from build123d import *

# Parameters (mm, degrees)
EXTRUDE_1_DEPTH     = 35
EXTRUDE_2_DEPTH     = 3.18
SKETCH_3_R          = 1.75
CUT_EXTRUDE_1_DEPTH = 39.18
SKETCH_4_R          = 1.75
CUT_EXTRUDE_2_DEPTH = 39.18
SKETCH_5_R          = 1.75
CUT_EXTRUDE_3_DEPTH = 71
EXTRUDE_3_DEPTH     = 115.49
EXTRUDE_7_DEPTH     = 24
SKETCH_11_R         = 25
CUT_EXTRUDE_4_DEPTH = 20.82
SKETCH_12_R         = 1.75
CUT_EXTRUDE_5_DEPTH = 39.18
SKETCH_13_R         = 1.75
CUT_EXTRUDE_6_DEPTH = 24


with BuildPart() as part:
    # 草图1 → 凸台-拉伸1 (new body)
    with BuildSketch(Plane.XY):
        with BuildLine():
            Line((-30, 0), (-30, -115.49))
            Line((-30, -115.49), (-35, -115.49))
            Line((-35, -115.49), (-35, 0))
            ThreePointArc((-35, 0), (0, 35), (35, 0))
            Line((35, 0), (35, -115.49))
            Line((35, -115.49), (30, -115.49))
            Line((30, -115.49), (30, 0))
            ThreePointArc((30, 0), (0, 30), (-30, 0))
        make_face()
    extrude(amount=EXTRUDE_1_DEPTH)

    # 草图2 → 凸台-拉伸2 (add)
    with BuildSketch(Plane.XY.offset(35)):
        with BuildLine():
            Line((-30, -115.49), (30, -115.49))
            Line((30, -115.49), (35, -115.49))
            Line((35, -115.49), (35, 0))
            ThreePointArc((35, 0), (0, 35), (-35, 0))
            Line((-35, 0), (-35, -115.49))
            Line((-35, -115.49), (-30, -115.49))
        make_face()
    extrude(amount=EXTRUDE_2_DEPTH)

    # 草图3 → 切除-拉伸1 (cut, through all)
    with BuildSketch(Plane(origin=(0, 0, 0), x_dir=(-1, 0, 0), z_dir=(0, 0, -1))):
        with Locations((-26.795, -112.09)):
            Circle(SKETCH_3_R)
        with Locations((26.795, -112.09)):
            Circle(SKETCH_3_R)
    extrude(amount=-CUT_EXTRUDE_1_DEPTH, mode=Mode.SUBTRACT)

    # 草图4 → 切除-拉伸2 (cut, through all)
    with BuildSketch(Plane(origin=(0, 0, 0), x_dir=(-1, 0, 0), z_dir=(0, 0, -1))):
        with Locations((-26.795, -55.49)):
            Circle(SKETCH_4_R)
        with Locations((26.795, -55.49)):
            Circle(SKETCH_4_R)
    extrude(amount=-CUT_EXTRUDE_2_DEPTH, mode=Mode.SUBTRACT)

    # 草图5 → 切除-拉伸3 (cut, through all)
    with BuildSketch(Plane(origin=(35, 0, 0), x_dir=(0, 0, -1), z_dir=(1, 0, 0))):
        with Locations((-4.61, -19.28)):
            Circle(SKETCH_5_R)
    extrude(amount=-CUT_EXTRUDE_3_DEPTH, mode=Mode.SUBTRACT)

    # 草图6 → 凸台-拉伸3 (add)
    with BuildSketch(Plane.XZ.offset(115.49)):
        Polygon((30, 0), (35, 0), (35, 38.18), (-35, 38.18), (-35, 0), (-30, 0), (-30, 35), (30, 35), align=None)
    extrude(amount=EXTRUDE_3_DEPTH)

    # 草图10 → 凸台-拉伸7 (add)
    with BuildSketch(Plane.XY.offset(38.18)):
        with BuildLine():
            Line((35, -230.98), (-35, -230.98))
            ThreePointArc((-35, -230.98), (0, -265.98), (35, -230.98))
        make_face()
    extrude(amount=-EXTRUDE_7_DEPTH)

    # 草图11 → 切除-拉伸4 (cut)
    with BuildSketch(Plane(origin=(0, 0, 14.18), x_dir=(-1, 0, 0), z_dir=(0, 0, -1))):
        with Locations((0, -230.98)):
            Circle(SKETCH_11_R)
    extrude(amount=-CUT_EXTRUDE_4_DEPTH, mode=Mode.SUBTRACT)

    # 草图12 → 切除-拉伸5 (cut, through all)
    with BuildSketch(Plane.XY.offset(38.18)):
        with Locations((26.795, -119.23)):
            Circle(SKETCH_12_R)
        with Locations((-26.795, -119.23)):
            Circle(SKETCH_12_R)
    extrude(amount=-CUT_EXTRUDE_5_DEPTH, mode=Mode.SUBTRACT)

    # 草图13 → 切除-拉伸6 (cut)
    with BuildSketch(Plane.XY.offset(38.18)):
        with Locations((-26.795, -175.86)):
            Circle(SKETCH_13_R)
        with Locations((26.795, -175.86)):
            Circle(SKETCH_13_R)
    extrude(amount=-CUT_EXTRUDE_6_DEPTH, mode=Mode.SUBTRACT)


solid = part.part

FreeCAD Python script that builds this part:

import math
import FreeCAD as App
import Part
import Sketcher
Q = App.Units.Quantity

doc = App.newDocument("Part")
body = doc.addObject("PartDesign::Body", "Body")

# Sketch on XY plane
sketch1 = body.newObject("Sketcher::SketchObject", "Sketch")
sketch1.AttachmentSupport = (doc.getObject("XY_Plane"), [""])
sketch1.MapMode = "FlatFace"
sketch1.addGeometry([
    Part.LineSegment(App.Vector(-30, -115.49, 0), App.Vector(-30, 0, 0)),  # 0
    Part.ArcOfCircle(Part.Circle(App.Vector(0, 0, 0), App.Vector(0, 0, 1), 30), math.radians(0), math.radians(180)),  # 1
    Part.LineSegment(App.Vector(30, 0, 0), App.Vector(30, -115.49, 0)),  # 2
    Part.LineSegment(App.Vector(30, -115.49, 0), App.Vector(35, -115.49, 0)),  # 3
    Part.LineSegment(App.Vector(35, -115.49, 0), App.Vector(35, 0, 0)),  # 4
    Part.ArcOfCircle(Part.Circle(App.Vector(0, 0, 0), App.Vector(0, 0, 1), 35), math.radians(0), math.radians(180)),  # 5
    Part.LineSegment(App.Vector(-35, 0, 0), App.Vector(-35, -115.49, 0)),  # 6
    Part.LineSegment(App.Vector(-35, -115.49, 0), App.Vector(-30, -115.49, 0)),  # 7
], False)
sketch1.addConstraint([
    Sketcher.Constraint("Tangent", 0, 2, 1, 2),
    Sketcher.Constraint("Tangent", 1, 1, 2, 1),
    Sketcher.Constraint("Coincident", 2, 2, 3, 1),
    Sketcher.Constraint("Coincident", 3, 2, 4, 1),
    Sketcher.Constraint("Tangent", 4, 2, 5, 1),
    Sketcher.Constraint("Tangent", 5, 2, 6, 1),
    Sketcher.Constraint("Coincident", 6, 2, 7, 1),
    Sketcher.Constraint("Coincident", 7, 2, 0, 1),
    Sketcher.Constraint("Vertical", 0),
    Sketcher.Constraint("Vertical", 2),
    Sketcher.Constraint("Horizontal", 3),
    Sketcher.Constraint("Vertical", 4),
    Sketcher.Constraint("Vertical", 6),
    Sketcher.Constraint("Horizontal", 7),
    Sketcher.Constraint("Coincident", 1, 3, -1, 1),
    Sketcher.Constraint("Coincident", 5, 3, -1, 1),
    Sketcher.Constraint("Horizontal", 3, 2, 6, 2),
    Sketcher.Constraint("Radius", 1, Q("30 mm")),
    Sketcher.Constraint("Radius", 5, Q("35 mm")),
    Sketcher.Constraint("DistanceY", 0, 1, 0, 2, Q("115.49 mm")),
])
pad1 = body.newObject("PartDesign::Pad", "Pad")
pad1.Profile = sketch1
pad1.Length = 35

# Sketch on XY plane
sketch2 = body.newObject("Sketcher::SketchObject", "Sketch001")
sketch2.AttachmentSupport = (doc.getObject("XY_Plane"), [""])
sketch2.MapMode = "FlatFace"
sketch2.AttachmentOffset = App.Placement(App.Vector(0, 0, 35), App.Rotation())
sketch2.addGeometry([
    Part.LineSegment(App.Vector(35, -115.49, 0), App.Vector(35, 0, 0)),
    Part.ArcOfCircle(Part.Circle(App.Vector(0, 0, 0), App.Vector(0, 0, 1), 35), math.radians(0), math.radians(180)),
    Part.LineSegment(App.Vector(-35, 0, 0), App.Vector(-35, -115.49, 0)),
    Part.LineSegment(App.Vector(-35, -115.49, 0), App.Vector(35, -115.49, 0)),
], False)
sketch2.addConstraint([
    Sketcher.Constraint("Tangent", 0, 2, 1, 1),
    Sketcher.Constraint("Tangent", 1, 2, 2, 1),
    Sketcher.Constraint("Coincident", 2, 2, 3, 1),
    Sketcher.Constraint("Coincident", 3, 2, 0, 1),
    Sketcher.Constraint("Vertical", 0),
    Sketcher.Constraint("Vertical", 2),
    Sketcher.Constraint("Horizontal", 3),
    Sketcher.Constraint("Coincident", 1, 3, -1, 1),
    Sketcher.Constraint("Radius", 1, Q("35 mm")),
    Sketcher.Constraint("DistanceY", 0, 1, 0, 2, Q("115.49 mm")),
])
pad2 = body.newObject("PartDesign::Pad", "Pad001")
pad2.Profile = sketch2
pad2.Length = 3.18

# Sketch on XY plane
sketch3 = body.newObject("Sketcher::SketchObject", "Sketch002")
sketch3.AttachmentSupport = (doc.getObject("XY_Plane"), [""])
sketch3.MapMode = "FlatFace"
sketch3.addGeometry([
    Part.Circle(App.Vector(26.795, -112.09, 0), App.Vector(0, 0, 1), 1.75),
    Part.Circle(App.Vector(-26.795, -112.09, 0), App.Vector(0, 0, 1), 1.75),
], False)
sketch3.addConstraint([
    Sketcher.Constraint("Equal", 0, 1),
    Sketcher.Constraint("Symmetric", 0, 3, 1, 3, -2),
    Sketcher.Constraint("Diameter", 0, Q("3.5 mm")),
    Sketcher.Constraint("DistanceY", 0, 3, -1, 1, Q("112.09 mm")),
    Sketcher.Constraint("DistanceX", 1, 3, 0, 3, Q("53.59 mm")),
])
pocket1 = body.newObject("PartDesign::Pocket", "Pocket")
pocket1.Profile = sketch3
pocket1.Type = "ThroughAll"
pocket1.Reversed = True

# Sketch on XY plane
sketch4 = body.newObject("Sketcher::SketchObject", "Sketch003")
sketch4.AttachmentSupport = (doc.getObject("XY_Plane"), [""])
sketch4.MapMode = "FlatFace"
sketch4.addGeometry([
    Part.Circle(App.Vector(26.795, -55.49, 0), App.Vector(0, 0, 1), 1.75),
    Part.Circle(App.Vector(-26.795, -55.49, 0), App.Vector(0, 0, 1), 1.75),
], False)
sketch4.addConstraint([
    Sketcher.Constraint("Equal", 0, 1),
    Sketcher.Constraint("Symmetric", 0, 3, 1, 3, -2),
    Sketcher.Constraint("Diameter", 0, Q("3.5 mm")),
    Sketcher.Constraint("DistanceY", 0, 3, -1, 1, Q("55.49 mm")),
    Sketcher.Constraint("DistanceX", 1, 3, 0, 3, Q("53.59 mm")),
])
pocket2 = body.newObject("PartDesign::Pocket", "Pocket001")
pocket2.Profile = sketch4
pocket2.Type = "ThroughAll"
pocket2.Reversed = True

# Sketch on YZ plane
sketch5 = body.newObject("Sketcher::SketchObject", "Sketch004")
sketch5.AttachmentSupport = (doc.getObject("YZ_Plane"), [""])
sketch5.MapMode = "FlatFace"
sketch5.AttachmentOffset = App.Placement(App.Vector(0, 0, 35), App.Rotation())
sketch5.addGeometry(Part.Circle(App.Vector(-19.28, 4.61, 0), App.Vector(0, 0, 1), 1.75), False)
sketch5.addConstraint([
    Sketcher.Constraint("Diameter", 0, Q("3.5 mm")),
    Sketcher.Constraint("DistanceX", 0, 3, -1, 1, Q("19.28 mm")),
    Sketcher.Constraint("DistanceY", -1, 1, 0, 3, Q("4.61 mm")),
])
pocket3 = body.newObject("PartDesign::Pocket", "Pocket002")
pocket3.Profile = sketch5
pocket3.Type = "ThroughAll"

# Sketch on XZ plane
sketch6 = body.newObject("Sketcher::SketchObject", "Sketch005")
sketch6.AttachmentSupport = (doc.getObject("XZ_Plane"), [""])
sketch6.MapMode = "FlatFace"
sketch6.AttachmentOffset = App.Placement(App.Vector(0, 0, 115.49), App.Rotation())
sketch6.addGeometry([
    Part.LineSegment(App.Vector(30, 0, 0), App.Vector(35, 0, 0)),  # 0
    Part.LineSegment(App.Vector(35, 0, 0), App.Vector(35, 38.18, 0)),  # 1
    Part.LineSegment(App.Vector(35, 38.18, 0), App.Vector(-35, 38.18, 0)),  # 2
    Part.LineSegment(App.Vector(-35, 38.18, 0), App.Vector(-35, 0, 0)),  # 3
    Part.LineSegment(App.Vector(-35, 0, 0), App.Vector(-30, 0, 0)),  # 4
    Part.LineSegment(App.Vector(-30, 0, 0), App.Vector(-30, 35, 0)),  # 5
    Part.LineSegment(App.Vector(-30, 35, 0), App.Vector(30, 35, 0)),  # 6
    Part.LineSegment(App.Vector(30, 35, 0), App.Vector(30, 0, 0)),  # 7
], False)
sketch6.addConstraint([
    Sketcher.Constraint("Coincident", 0, 2, 1, 1),
    Sketcher.Constraint("Coincident", 1, 2, 2, 1),
    Sketcher.Constraint("Coincident", 2, 2, 3, 1),
    Sketcher.Constraint("Coincident", 3, 2, 4, 1),
    Sketcher.Constraint("Coincident", 4, 2, 5, 1),
    Sketcher.Constraint("Coincident", 5, 2, 6, 1),
    Sketcher.Constraint("Coincident", 6, 2, 7, 1),
    Sketcher.Constraint("Coincident", 7, 2, 0, 1),
    Sketcher.Constraint("Horizontal", 0),
    Sketcher.Constraint("Vertical", 1),
    Sketcher.Constraint("Horizontal", 2),
    Sketcher.Constraint("Vertical", 3),
    Sketcher.Constraint("Horizontal", 4),
    Sketcher.Constraint("Vertical", 5),
    Sketcher.Constraint("Horizontal", 6),
    Sketcher.Constraint("Vertical", 7),
    Sketcher.Constraint("Symmetric", 0, 2, 3, 2, -1, 1),
    Sketcher.Constraint("Symmetric", 4, 2, 7, 2, -2),
    Sketcher.Constraint("DistanceX", 0, 1, 0, 2, Q("5 mm")),
    Sketcher.Constraint("DistanceX", 2, 2, 2, 1, Q("70 mm")),
    Sketcher.Constraint("DistanceY", 5, 1, 5, 2, Q("35 mm")),
    Sketcher.Constraint("DistanceY", 1, 1, 1, 2, Q("38.18 mm")),
])
pad3 = body.newObject("PartDesign::Pad", "Pad002")
pad3.Profile = sketch6
pad3.Length = 115.49

# Sketch on XY plane
sketch7 = body.newObject("Sketcher::SketchObject", "Sketch006")
sketch7.AttachmentSupport = (doc.getObject("XY_Plane"), [""])
sketch7.MapMode = "FlatFace"
sketch7.AttachmentOffset = App.Placement(App.Vector(0, 0, 38.18), App.Rotation())
sketch7.addGeometry([
    Part.LineSegment(App.Vector(35, -230.98, 0), App.Vector(-35, -230.98, 0)),
    Part.ArcOfCircle(Part.Circle(App.Vector(0, -230.98, 0), App.Vector(0, 0, 1), 35), math.radians(180), math.radians(360)),
], False)
sketch7.addConstraint([
    Sketcher.Constraint("Coincident", 0, 1, 1, 2),
    Sketcher.Constraint("Coincident", 1, 1, 0, 2),
    Sketcher.Constraint("Horizontal", 0),
    Sketcher.Constraint("PointOnObject", 1, 3, -2),
    Sketcher.Constraint("Horizontal", 1, 3, 0, 1),
    Sketcher.Constraint("Radius", 1, Q("35 mm")),
    Sketcher.Constraint("DistanceY", 1, 3, -1, 1, Q("230.98 mm")),
])
pad4 = body.newObject("PartDesign::Pad", "Pad003")
pad4.Profile = sketch7
pad4.Length = 24
pad4.Reversed = True

# Sketch on XY plane
sketch8 = body.newObject("Sketcher::SketchObject", "Sketch007")
sketch8.AttachmentSupport = (doc.getObject("XY_Plane"), [""])
sketch8.MapMode = "FlatFace"
sketch8.AttachmentOffset = App.Placement(App.Vector(0, 0, 14.18), App.Rotation())
sketch8.addGeometry(Part.Circle(App.Vector(0, -230.98, 0), App.Vector(0, 0, 1), 25), False)
sketch8.addConstraint([
    Sketcher.Constraint("PointOnObject", 0, 3, -2),
    Sketcher.Constraint("Diameter", 0, Q("50 mm")),
    Sketcher.Constraint("DistanceY", 0, 3, -1, 1, Q("230.98 mm")),
])
pocket4 = body.newObject("PartDesign::Pocket", "Pocket003")
pocket4.Profile = sketch8
pocket4.Length = 20.82
pocket4.Reversed = True

# Sketch on XY plane
sketch9 = body.newObject("Sketcher::SketchObject", "Sketch008")
sketch9.AttachmentSupport = (doc.getObject("XY_Plane"), [""])
sketch9.MapMode = "FlatFace"
sketch9.AttachmentOffset = App.Placement(App.Vector(0, 0, 38.18), App.Rotation())
sketch9.addGeometry([
    Part.Circle(App.Vector(26.795, -119.23, 0), App.Vector(0, 0, 1), 1.75),
    Part.Circle(App.Vector(-26.795, -119.23, 0), App.Vector(0, 0, 1), 1.75),
], False)
sketch9.addConstraint([
    Sketcher.Constraint("Equal", 0, 1),
    Sketcher.Constraint("Symmetric", 0, 3, 1, 3, -2),
    Sketcher.Constraint("Diameter", 0, Q("3.5 mm")),
    Sketcher.Constraint("DistanceY", 0, 3, -1, 1, Q("119.23 mm")),
    Sketcher.Constraint("DistanceX", 1, 3, 0, 3, Q("53.59 mm")),
])
pocket5 = body.newObject("PartDesign::Pocket", "Pocket004")
pocket5.Profile = sketch9
pocket5.Type = "ThroughAll"

# Sketch on XY plane
sketch10 = body.newObject("Sketcher::SketchObject", "Sketch009")
sketch10.AttachmentSupport = (doc.getObject("XY_Plane"), [""])
sketch10.MapMode = "FlatFace"
sketch10.AttachmentOffset = App.Placement(App.Vector(0, 0, 38.18), App.Rotation())
sketch10.addGeometry([
    Part.Circle(App.Vector(-26.795, -175.86, 0), App.Vector(0, 0, 1), 1.75),
    Part.Circle(App.Vector(26.795, -175.86, 0), App.Vector(0, 0, 1), 1.75),
], False)
sketch10.addConstraint([
    Sketcher.Constraint("Equal", 0, 1),
    Sketcher.Constraint("Symmetric", 0, 3, 1, 3, -2),
    Sketcher.Constraint("Diameter", 0, Q("3.5 mm")),
    Sketcher.Constraint("DistanceY", 0, 3, -1, 1, Q("175.86 mm")),
    Sketcher.Constraint("DistanceX", 0, 3, 1, 3, Q("53.59 mm")),
])
pocket6 = body.newObject("PartDesign::Pocket", "Pocket005")
pocket6.Profile = sketch10
pocket6.Length = 24

doc.recompute()
